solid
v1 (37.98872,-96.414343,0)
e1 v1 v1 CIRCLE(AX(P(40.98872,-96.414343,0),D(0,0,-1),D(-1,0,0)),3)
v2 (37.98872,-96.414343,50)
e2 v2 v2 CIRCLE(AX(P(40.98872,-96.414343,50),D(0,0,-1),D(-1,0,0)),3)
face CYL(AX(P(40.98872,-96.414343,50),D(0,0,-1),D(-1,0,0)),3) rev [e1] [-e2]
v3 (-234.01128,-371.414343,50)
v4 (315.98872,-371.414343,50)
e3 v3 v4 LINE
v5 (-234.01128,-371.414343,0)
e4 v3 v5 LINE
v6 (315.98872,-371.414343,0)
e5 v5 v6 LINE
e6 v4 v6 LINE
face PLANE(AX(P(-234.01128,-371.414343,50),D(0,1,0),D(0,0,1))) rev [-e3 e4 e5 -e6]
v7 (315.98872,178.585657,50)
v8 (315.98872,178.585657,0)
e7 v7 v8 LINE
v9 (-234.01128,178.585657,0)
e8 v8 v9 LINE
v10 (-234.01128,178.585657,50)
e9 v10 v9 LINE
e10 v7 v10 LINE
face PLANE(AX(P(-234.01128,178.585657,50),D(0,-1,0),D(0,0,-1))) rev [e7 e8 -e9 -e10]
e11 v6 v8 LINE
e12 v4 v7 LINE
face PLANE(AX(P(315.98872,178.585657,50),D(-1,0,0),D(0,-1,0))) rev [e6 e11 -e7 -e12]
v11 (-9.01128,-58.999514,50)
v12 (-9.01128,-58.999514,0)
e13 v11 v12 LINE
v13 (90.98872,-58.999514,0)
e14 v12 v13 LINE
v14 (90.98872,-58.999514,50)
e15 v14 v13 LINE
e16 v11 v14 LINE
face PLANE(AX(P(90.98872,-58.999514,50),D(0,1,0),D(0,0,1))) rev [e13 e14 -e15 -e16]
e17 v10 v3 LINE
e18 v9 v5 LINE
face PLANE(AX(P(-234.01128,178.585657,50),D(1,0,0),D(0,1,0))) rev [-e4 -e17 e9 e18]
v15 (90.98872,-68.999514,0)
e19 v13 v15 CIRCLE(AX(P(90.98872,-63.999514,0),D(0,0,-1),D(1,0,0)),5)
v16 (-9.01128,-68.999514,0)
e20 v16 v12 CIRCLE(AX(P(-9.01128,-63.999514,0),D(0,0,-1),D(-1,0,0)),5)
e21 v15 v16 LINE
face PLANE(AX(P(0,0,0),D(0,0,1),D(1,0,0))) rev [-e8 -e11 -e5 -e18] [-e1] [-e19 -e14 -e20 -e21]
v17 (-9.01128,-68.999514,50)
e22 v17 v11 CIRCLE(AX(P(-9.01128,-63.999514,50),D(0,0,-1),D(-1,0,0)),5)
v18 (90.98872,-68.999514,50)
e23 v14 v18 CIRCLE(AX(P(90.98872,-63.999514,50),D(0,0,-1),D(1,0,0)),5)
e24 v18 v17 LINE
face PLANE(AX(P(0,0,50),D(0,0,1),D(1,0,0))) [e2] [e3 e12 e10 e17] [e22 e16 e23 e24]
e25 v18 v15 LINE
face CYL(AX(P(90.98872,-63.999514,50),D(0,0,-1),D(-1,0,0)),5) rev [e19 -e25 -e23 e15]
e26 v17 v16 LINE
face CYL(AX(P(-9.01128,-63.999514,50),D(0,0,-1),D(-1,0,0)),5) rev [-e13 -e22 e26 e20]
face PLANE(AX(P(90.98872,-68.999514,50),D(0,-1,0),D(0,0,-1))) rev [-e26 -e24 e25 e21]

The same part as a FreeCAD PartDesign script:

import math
import FreeCAD as App
import Part
import Sketcher

V = App.Vector
Q = App.Units.Quantity


def add_polygon(sketch, points):
    """Adds a closed chain of lines whose ends are joined by coincident constraints."""
    first, n = sketch.GeometryCount, len(points)
    for a, b in zip(points, points[1:] + points[:1]):
        sketch.addGeometry(Part.LineSegment(App.Vector(*a, 0), App.Vector(*b, 0)), False)
    for i in range(n):
        sketch.addConstraint(Sketcher.Constraint("Coincident", first + i, 2, first + (i + 1) % n, 1))

doc = App.newDocument("Part")
body = doc.addObject("PartDesign::Body", "Body")

# Sketch on XY plane
sketch1 = body.newObject("Sketcher::SketchObject", "Sketch")
sketch1.AttachmentSupport = (doc.getObject("XY_Plane"), [""])
sketch1.MapMode = "FlatFace"
add_polygon(sketch1, [(-234, 179), (-234, -371), (316, -371), (316, 179)])  # lines 0-3
sketch1.addConstraint([
    Sketcher.Constraint("Vertical", 0),
    Sketcher.Constraint("Horizontal", 1),
    Sketcher.Constraint("Vertical", 2),
    Sketcher.Constraint("Horizontal", 3),
    Sketcher.Constraint("Equal", 3, 0),
    Sketcher.Constraint("DistanceX", 1, 1, 1, 2, Q("550 mm")),
    Sketcher.Constraint("DistanceX", 0, 2, -1, 1, Q("234.01128 mm")),
    Sketcher.Constraint("DistanceY", 0, 2, -1, 1, Q("371.414343 mm")),
])
pad1 = body.newObject("PartDesign::Pad", "Pad")
pad1.Profile = sketch1
pad1.Length = 50

# Sketch on XY plane
sketch2 = body.newObject("Sketcher::SketchObject", "Sketch001")
sketch2.AttachmentSupport = (doc.getObject("XY_Plane"), [""])
sketch2.MapMode = "FlatFace"
sketch2.addGeometry([
    Part.Circle(V(41, -96.4, 0), V(0, 0, 1), 3),  # 0
    Part.LineSegment(V(-9, -59, 0), V(91, -59, 0)),  # 1
    Part.ArcOfCircle(Part.Circle(V(91, -64, 0), V(0, 0, 1), 5), math.radians(-90), math.radians(90)),  # 2
    Part.LineSegment(V(91, -69, 0), V(-9, -69, 0)),  # 3
    Part.ArcOfCircle(Part.Circle(V(-9, -64, 0), V(0, 0, 1), 5), math.radians(90), math.radians(270)),  # 4
], False)
sketch2.addConstraint([
    Sketcher.Constraint("Tangent", 1, 2, 2, 2),
    Sketcher.Constraint("Tangent", 2, 1, 3, 1),
    Sketcher.Constraint("Tangent", 3, 2, 4, 2),
    Sketcher.Constraint("Tangent", 4, 1, 1, 1),
    Sketcher.Constraint("Horizontal", 1),
    Sketcher.Constraint("Horizontal", 3),
    Sketcher.Constraint("Diameter", 0, Q("6 mm")),
    Sketcher.Constraint("Radius", 2, Q("5 mm")),
    Sketcher.Constraint("DistanceX", 1, 1, 1, 2, Q("100 mm")),
    Sketcher.Constraint("DistanceX", 0, 3, 2, 3, Q("50 mm")),
    Sketcher.Constraint("DistanceX", -1, 1, 0, 3, Q("40.98872 mm")),
    Sketcher.Constraint("DistanceY", 0, 3, 2, 3, Q("32.414828 mm")),
    Sketcher.Constraint("DistanceY", 0, 3, -1, 1, Q("96.414343 mm")),
])
pocket1 = body.newObject("PartDesign::Pocket", "Pocket")
pocket1.Profile = sketch2
pocket1.Length = 50
pocket1.Reversed = True

doc.recompute()
